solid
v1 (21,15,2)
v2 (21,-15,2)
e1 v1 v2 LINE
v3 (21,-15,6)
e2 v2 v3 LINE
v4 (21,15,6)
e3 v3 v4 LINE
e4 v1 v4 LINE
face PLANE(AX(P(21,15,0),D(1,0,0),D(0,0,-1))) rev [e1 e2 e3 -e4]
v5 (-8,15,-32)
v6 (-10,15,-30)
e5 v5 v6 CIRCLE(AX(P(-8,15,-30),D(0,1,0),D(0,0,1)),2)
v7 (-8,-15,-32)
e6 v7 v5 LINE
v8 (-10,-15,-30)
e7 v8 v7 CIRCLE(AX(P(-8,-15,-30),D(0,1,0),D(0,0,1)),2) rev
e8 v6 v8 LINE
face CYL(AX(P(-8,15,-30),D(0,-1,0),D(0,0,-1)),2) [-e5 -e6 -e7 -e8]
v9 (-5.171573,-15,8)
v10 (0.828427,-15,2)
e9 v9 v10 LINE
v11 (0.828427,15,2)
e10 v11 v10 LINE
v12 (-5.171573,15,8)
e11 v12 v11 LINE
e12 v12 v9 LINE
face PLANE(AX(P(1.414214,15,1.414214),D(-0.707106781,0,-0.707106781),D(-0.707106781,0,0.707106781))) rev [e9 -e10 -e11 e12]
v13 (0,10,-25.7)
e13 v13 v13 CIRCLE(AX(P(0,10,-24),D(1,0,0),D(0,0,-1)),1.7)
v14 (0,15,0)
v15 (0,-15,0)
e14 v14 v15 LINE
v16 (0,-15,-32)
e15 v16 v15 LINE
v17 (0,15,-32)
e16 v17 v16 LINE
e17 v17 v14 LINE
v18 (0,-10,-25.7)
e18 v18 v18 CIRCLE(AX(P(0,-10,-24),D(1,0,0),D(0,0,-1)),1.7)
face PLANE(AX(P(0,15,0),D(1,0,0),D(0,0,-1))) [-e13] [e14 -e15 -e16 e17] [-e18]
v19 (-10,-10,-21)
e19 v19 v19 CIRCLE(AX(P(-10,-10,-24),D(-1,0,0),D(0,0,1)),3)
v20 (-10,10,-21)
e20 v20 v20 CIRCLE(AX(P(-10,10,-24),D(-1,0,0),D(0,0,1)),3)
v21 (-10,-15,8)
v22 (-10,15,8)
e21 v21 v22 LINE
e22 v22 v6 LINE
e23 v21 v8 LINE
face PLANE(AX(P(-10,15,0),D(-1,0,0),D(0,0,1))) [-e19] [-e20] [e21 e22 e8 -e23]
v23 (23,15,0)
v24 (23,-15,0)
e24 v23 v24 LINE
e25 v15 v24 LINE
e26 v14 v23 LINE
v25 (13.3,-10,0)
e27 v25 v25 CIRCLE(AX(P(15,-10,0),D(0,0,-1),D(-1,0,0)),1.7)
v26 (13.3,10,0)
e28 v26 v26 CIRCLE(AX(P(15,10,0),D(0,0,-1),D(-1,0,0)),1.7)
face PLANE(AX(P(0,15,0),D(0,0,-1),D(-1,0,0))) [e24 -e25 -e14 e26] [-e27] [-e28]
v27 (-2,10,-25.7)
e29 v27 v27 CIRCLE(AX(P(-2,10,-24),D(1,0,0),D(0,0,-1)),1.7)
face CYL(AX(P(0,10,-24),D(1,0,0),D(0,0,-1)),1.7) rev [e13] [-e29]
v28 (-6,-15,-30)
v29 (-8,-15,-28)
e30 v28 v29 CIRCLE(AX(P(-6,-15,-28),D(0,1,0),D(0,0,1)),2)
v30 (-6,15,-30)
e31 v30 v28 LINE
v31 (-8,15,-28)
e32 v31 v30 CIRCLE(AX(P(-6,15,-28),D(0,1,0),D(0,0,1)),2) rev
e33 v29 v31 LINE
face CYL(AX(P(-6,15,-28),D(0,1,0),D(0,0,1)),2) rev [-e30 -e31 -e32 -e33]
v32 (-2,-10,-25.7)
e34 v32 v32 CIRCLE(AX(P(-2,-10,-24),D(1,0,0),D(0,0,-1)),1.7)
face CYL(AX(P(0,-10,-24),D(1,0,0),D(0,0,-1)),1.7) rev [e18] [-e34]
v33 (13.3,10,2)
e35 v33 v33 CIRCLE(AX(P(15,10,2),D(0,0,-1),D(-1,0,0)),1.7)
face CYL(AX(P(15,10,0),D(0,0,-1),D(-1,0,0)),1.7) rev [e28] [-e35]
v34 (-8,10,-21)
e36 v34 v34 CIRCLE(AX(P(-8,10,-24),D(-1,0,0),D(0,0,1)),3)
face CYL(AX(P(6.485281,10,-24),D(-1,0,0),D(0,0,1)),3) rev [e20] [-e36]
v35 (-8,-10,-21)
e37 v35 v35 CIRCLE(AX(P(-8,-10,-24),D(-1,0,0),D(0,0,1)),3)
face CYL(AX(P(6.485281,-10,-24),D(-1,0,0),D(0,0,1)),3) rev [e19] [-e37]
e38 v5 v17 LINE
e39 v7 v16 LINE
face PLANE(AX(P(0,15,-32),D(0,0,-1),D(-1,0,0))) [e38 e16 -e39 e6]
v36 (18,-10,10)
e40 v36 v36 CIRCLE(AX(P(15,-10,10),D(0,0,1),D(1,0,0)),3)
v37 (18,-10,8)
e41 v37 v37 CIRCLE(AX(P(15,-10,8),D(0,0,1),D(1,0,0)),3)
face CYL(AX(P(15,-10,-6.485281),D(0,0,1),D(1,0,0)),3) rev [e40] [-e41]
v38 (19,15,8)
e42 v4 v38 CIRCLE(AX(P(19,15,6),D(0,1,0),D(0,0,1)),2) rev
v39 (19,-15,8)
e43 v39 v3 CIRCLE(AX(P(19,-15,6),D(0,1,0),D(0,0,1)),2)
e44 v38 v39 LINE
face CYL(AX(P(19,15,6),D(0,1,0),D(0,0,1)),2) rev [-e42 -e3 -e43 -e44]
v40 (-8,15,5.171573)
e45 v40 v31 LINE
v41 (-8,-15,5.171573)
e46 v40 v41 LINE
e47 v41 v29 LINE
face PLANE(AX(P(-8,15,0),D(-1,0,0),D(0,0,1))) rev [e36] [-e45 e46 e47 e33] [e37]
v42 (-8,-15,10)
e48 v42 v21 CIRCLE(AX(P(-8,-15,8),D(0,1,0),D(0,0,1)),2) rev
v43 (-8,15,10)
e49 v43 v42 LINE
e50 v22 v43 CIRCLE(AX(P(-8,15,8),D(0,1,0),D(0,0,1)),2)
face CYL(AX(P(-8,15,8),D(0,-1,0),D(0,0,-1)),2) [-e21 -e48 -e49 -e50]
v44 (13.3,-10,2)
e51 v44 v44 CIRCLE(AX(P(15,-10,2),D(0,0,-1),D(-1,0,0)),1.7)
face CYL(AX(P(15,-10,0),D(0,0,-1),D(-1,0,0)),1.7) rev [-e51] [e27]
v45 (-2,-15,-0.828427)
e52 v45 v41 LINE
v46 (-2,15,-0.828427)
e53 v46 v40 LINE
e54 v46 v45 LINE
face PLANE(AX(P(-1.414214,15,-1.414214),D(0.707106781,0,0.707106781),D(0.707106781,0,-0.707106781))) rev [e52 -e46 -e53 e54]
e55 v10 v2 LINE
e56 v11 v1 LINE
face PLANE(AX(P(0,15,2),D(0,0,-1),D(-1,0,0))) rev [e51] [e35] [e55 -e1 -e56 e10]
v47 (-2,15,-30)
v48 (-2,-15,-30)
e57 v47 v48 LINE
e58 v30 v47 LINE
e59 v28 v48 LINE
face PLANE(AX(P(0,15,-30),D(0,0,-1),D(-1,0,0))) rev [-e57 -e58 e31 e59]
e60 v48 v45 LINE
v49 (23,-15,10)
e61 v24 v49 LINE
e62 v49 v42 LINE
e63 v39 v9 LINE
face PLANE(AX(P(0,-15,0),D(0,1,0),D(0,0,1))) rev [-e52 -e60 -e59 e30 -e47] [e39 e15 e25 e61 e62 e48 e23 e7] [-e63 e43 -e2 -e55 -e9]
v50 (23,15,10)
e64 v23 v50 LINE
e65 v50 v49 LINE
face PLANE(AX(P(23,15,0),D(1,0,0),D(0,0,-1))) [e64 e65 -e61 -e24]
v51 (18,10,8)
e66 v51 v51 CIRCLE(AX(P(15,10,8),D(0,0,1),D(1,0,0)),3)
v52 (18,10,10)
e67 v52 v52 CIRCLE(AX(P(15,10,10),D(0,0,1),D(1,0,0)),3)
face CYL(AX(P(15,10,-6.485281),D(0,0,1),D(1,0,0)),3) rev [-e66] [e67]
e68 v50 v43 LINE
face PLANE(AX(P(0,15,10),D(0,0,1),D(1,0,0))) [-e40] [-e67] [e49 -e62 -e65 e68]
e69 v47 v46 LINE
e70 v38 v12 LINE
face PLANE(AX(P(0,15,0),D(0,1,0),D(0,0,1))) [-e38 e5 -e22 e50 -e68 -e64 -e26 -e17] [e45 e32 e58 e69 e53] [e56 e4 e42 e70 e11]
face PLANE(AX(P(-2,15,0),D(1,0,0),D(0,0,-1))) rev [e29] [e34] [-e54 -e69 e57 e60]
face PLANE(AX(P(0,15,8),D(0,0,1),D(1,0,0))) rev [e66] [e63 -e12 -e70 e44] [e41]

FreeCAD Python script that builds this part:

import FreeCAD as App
import Part
import Sketcher


def edges_at(feature, points):
    """Names of the edges that pass closest to the given points."""
    edges = feature.Shape.Edges
    near = lambda p: min(range(len(edges)), key=lambda i: edges[i].distToShape(Part.Vertex(*p))[0])
    return sorted({f"Edge{near(p) + 1}" for p in points})

doc = App.newDocument("Part")
body = doc.addObject("PartDesign::Body", "Body")

# Sketch on XZ plane
sketch1 = body.newObject("Sketcher::SketchObject", "Sketch")
sketch1.AttachmentSupport = (doc.getObject("XZ_Plane"), [""])
sketch1.MapMode = "FlatFace"
sketch1.addGeometry([
    Part.LineSegment(App.Vector(0, 0, 0), App.Vector(0, -32, 0)),  # 0
    Part.LineSegment(App.Vector(0, -32, 0), App.Vector(-10, -32, 0)),  # 1
    Part.LineSegment(App.Vector(-10, -32, 0), App.Vector(-10, 10, 0)),  # 2
    Part.LineSegment(App.Vector(-10, 10, 0), App.Vector(23, 10, 0)),  # 3
    Part.LineSegment(App.Vector(23, 10, 0), App.Vector(23, 0, 0)),  # 4
    Part.LineSegment(App.Vector(23, 0, 0), App.Vector(0, 0, 0)),  # 5
    Part.LineSegment(App.Vector(21, 2, 0), App.Vector(21, 8, 0)),  # 6
    Part.LineSegment(App.Vector(21, 8, 0), App.Vector(-5, 8, 0)),  # 7
    Part.LineSegment(App.Vector(-5, 8, 0), App.Vector(1, 2, 0)),  # 8
    Part.LineSegment(App.Vector(1, 2, 0), App.Vector(21, 2, 0)),  # 9
    Part.LineSegment(App.Vector(-8, 5, 0), App.Vector(-8, -30, 0)),  # 10
    Part.LineSegment(App.Vector(-8, -30, 0), App.Vector(-2, -30, 0)),  # 11
    Part.LineSegment(App.Vector(-2, -30, 0), App.Vector(-2, -1, 0)),  # 12
    Part.LineSegment(App.Vector(-2, -1, 0), App.Vector(-8, 5, 0)),  # 13
], False)
sketch1.addConstraint([
    Sketcher.Constraint("Coincident", 0, 2, 1, 1),
    Sketcher.Constraint("Coincident", 1, 2, 2, 1),
    Sketcher.Constraint("Coincident", 2, 2, 3, 1),
    Sketcher.Constraint("Coincident", 3, 2, 4, 1),
    Sketcher.Constraint("Coincident", 4, 2, 5, 1),
    Sketcher.Constraint("Coincident", 5, 2, 0, 1),
    Sketcher.Constraint("Coincident", 6, 2, 7, 1),
    Sketcher.Constraint("Coincident", 7, 2, 8, 1),
    Sketcher.Constraint("Coincident", 8, 2, 9, 1),
    Sketcher.Constraint("Coincident", 9, 2, 6, 1),
    Sketcher.Constraint("Coincident", 10, 2, 11, 1),
    Sketcher.Constraint("Coincident", 11, 2, 12, 1),
    Sketcher.Constraint("Coincident", 12, 2, 13, 1),
    Sketcher.Constraint("Coincident", 13, 2, 10, 1),
    Sketcher.Constraint("Vertical", 0),
    Sketcher.Constraint("Horizontal", 1),
    Sketcher.Constraint("Vertical", 2),
    Sketcher.Constraint("Horizontal", 3),
    Sketcher.Constraint("Vertical", 4),
    Sketcher.Constraint("Horizontal", 5),
    Sketcher.Constraint("Vertical", 6),
    Sketcher.Constraint("Horizontal", 7),
    Sketcher.Constraint("Horizontal", 9),
    Sketcher.Constraint("Vertical", 10),
    Sketcher.Constraint("Horizontal", 11),
    Sketcher.Constraint("Vertical", 12),
    Sketcher.Constraint("Coincident", 5, 2, -1, 1),
    Sketcher.Constraint("Parallel", 8, 13),
    Sketcher.Constraint("Equal", 1, 4),
    Sketcher.Constraint("Equal", 11, 6),
    Sketcher.Constraint("Equal", 8, 13),
    Sketcher.Constraint("DistanceX", 1, 2, 1, 1, 10.0),
    Sketcher.Constraint("DistanceX", 3, 1, 3, 2, 33.0),
    Sketcher.Constraint("DistanceX", 11, 1, 11, 2, 6.0),
    Sketcher.Constraint("DistanceY", 0, 2, 0, 1, 32.0),
    Sketcher.Constraint("DistanceX", -1, 1, 6, 2, 21.0),
    Sketcher.Constraint("DistanceY", -1, 1, 6, 2, 8.0),
    Sketcher.Constraint("DistanceX", 10, 2, -1, 1, 8.0),
    Sketcher.Constraint("DistanceY", 10, 2, -1, 1, 30.0),
    Sketcher.Constraint("DistanceX", 7, 2, 7, 1, 26.171573),
    Sketcher.Constraint("DistanceY", 10, 2, 10, 1, 35.171573),
])
pad1 = body.newObject("PartDesign::Pad", "Pad")
pad1.Profile = sketch1
pad1.Length = 30
pad1.Midplane = True
doc.recompute()

fillet = body.newObject("PartDesign::Fillet", "Fillet")
fillet.Base = (pad1, edges_at(pad1, [
    (-10, 0, 10),
    (-10, 0, -32),
    (21, 0, 8),
    (-8, 0, -30),
]))
fillet.Radius = 2

# Sketch on XY plane
sketch2 = body.newObject("Sketcher::SketchObject", "Sketch001")
sketch2.AttachmentSupport = (doc.getObject("XY_Plane"), [""])
sketch2.MapMode = "FlatFace"
sketch2.addGeometry([
    Part.Circle(App.Vector(15, -10, 0), App.Vector(0, 0, 1), 1.7),
    Part.Circle(App.Vector(15, 10, 0), App.Vector(0, 0, 1), 1.7),
], False)
sketch2.addConstraint([
    Sketcher.Constraint("Equal", 0, 1),
    Sketcher.Constraint("Symmetric", 0, 3, 1, 3, -1),
    Sketcher.Constraint("Diameter", 0, 3.4),
    Sketcher.Constraint("DistanceX", -1, 1, 0, 3, 15.0),
    Sketcher.Constraint("DistanceY", 0, 3, -1, 1, 10.0),
])
doc.recompute()
hole = body.newObject("PartDesign::Hole", "Hole")
hole.Profile = sketch2
hole.ThreadType = "None"
hole.Diameter = 3.4
hole.DepthType = "ThroughAll"
hole.Reversed = True

# Sketch on YZ plane
sketch3 = body.newObject("Sketcher::SketchObject", "Sketch002")
sketch3.AttachmentSupport = (doc.getObject("YZ_Plane"), [""])
sketch3.MapMode = "FlatFace"
sketch3.addGeometry([
    Part.Circle(App.Vector(10, -24, 0), App.Vector(0, 0, 1), 1.7),
    Part.Circle(App.Vector(-10, -24, 0), App.Vector(0, 0, 1), 1.7),
], False)
sketch3.addConstraint([
    Sketcher.Constraint("Equal", 0, 1),
    Sketcher.Constraint("Symmetric", 0, 3, 1, 3, -2),
    Sketcher.Constraint("Diameter", 0, 3.4),
    Sketcher.Constraint("DistanceX", -1, 1, 0, 3, 10.0),
    Sketcher.Constraint("DistanceY", 0, 3, -1, 1, 24.0),
])
doc.recompute()
hole2 = body.newObject("PartDesign::Hole", "Hole001")
hole2.Profile = sketch3
hole2.ThreadType = "None"
hole2.Diameter = 3.4
hole2.DepthType = "ThroughAll"

# Sketch on YZ plane
sketch4 = body.newObject("Sketcher::SketchObject", "Sketch003")
sketch4.AttachmentSupport = (doc.getObject("YZ_Plane"), [""])
sketch4.MapMode = "FlatFace"
sketch4.AttachmentOffset = App.Placement(App.Vector(0, 0, -10), App.Rotation())
sketch4.addGeometry([
    Part.Circle(App.Vector(10, -24, 0), App.Vector(0, 0, 1), 3),
    Part.Circle(App.Vector(-10, -24, 0), App.Vector(0, 0, 1), 3),
], False)
sketch4.addConstraint([
    Sketcher.Constraint("Equal", 0, 1),
    Sketcher.Constraint("Symmetric", 0, 3, 1, 3, -2),
    Sketcher.Constraint("Diameter", 0, 6.0),
    Sketcher.Constraint("DistanceX", -1, 1, 0, 3, 10.0),
    Sketcher.Constraint("DistanceY", 0, 3, -1, 1, 24.0),
])
pocket1 = body.newObject("PartDesign::Pocket", "Pocket")
pocket1.Profile = sketch4
pocket1.Length = 8
pocket1.Reversed = True

# Sketch on XY plane
sketch5 = body.newObject("Sketcher::SketchObject", "Sketch004")
sketch5.AttachmentSupport = (doc.getObject("XY_Plane"), [""])
sketch5.MapMode = "FlatFace"
sketch5.AttachmentOffset = App.Placement(App.Vector(0, 0, 10), App.Rotation())
sketch5.addGeometry([
    Part.Circle(App.Vector(15, 10, 0), App.Vector(0, 0, 1), 3),
    Part.Circle(App.Vector(15, -10, 0), App.Vector(0, 0, 1), 3),
], False)
sketch5.addConstraint([
    Sketcher.Constraint("Equal", 0, 1),
    Sketcher.Constraint("Symmetric", 0, 3, 1, 3, -1),
    Sketcher.Constraint("Diameter", 0, 6.0),
    Sketcher.Constraint("DistanceX", -1, 1, 0, 3, 15.0),
    Sketcher.Constraint("DistanceY", -1, 1, 0, 3, 10.0),
])
pocket2 = body.newObject("PartDesign::Pocket", "Pocket001")
pocket2.Profile = sketch5
pocket2.Length = 8

doc.recompute()
